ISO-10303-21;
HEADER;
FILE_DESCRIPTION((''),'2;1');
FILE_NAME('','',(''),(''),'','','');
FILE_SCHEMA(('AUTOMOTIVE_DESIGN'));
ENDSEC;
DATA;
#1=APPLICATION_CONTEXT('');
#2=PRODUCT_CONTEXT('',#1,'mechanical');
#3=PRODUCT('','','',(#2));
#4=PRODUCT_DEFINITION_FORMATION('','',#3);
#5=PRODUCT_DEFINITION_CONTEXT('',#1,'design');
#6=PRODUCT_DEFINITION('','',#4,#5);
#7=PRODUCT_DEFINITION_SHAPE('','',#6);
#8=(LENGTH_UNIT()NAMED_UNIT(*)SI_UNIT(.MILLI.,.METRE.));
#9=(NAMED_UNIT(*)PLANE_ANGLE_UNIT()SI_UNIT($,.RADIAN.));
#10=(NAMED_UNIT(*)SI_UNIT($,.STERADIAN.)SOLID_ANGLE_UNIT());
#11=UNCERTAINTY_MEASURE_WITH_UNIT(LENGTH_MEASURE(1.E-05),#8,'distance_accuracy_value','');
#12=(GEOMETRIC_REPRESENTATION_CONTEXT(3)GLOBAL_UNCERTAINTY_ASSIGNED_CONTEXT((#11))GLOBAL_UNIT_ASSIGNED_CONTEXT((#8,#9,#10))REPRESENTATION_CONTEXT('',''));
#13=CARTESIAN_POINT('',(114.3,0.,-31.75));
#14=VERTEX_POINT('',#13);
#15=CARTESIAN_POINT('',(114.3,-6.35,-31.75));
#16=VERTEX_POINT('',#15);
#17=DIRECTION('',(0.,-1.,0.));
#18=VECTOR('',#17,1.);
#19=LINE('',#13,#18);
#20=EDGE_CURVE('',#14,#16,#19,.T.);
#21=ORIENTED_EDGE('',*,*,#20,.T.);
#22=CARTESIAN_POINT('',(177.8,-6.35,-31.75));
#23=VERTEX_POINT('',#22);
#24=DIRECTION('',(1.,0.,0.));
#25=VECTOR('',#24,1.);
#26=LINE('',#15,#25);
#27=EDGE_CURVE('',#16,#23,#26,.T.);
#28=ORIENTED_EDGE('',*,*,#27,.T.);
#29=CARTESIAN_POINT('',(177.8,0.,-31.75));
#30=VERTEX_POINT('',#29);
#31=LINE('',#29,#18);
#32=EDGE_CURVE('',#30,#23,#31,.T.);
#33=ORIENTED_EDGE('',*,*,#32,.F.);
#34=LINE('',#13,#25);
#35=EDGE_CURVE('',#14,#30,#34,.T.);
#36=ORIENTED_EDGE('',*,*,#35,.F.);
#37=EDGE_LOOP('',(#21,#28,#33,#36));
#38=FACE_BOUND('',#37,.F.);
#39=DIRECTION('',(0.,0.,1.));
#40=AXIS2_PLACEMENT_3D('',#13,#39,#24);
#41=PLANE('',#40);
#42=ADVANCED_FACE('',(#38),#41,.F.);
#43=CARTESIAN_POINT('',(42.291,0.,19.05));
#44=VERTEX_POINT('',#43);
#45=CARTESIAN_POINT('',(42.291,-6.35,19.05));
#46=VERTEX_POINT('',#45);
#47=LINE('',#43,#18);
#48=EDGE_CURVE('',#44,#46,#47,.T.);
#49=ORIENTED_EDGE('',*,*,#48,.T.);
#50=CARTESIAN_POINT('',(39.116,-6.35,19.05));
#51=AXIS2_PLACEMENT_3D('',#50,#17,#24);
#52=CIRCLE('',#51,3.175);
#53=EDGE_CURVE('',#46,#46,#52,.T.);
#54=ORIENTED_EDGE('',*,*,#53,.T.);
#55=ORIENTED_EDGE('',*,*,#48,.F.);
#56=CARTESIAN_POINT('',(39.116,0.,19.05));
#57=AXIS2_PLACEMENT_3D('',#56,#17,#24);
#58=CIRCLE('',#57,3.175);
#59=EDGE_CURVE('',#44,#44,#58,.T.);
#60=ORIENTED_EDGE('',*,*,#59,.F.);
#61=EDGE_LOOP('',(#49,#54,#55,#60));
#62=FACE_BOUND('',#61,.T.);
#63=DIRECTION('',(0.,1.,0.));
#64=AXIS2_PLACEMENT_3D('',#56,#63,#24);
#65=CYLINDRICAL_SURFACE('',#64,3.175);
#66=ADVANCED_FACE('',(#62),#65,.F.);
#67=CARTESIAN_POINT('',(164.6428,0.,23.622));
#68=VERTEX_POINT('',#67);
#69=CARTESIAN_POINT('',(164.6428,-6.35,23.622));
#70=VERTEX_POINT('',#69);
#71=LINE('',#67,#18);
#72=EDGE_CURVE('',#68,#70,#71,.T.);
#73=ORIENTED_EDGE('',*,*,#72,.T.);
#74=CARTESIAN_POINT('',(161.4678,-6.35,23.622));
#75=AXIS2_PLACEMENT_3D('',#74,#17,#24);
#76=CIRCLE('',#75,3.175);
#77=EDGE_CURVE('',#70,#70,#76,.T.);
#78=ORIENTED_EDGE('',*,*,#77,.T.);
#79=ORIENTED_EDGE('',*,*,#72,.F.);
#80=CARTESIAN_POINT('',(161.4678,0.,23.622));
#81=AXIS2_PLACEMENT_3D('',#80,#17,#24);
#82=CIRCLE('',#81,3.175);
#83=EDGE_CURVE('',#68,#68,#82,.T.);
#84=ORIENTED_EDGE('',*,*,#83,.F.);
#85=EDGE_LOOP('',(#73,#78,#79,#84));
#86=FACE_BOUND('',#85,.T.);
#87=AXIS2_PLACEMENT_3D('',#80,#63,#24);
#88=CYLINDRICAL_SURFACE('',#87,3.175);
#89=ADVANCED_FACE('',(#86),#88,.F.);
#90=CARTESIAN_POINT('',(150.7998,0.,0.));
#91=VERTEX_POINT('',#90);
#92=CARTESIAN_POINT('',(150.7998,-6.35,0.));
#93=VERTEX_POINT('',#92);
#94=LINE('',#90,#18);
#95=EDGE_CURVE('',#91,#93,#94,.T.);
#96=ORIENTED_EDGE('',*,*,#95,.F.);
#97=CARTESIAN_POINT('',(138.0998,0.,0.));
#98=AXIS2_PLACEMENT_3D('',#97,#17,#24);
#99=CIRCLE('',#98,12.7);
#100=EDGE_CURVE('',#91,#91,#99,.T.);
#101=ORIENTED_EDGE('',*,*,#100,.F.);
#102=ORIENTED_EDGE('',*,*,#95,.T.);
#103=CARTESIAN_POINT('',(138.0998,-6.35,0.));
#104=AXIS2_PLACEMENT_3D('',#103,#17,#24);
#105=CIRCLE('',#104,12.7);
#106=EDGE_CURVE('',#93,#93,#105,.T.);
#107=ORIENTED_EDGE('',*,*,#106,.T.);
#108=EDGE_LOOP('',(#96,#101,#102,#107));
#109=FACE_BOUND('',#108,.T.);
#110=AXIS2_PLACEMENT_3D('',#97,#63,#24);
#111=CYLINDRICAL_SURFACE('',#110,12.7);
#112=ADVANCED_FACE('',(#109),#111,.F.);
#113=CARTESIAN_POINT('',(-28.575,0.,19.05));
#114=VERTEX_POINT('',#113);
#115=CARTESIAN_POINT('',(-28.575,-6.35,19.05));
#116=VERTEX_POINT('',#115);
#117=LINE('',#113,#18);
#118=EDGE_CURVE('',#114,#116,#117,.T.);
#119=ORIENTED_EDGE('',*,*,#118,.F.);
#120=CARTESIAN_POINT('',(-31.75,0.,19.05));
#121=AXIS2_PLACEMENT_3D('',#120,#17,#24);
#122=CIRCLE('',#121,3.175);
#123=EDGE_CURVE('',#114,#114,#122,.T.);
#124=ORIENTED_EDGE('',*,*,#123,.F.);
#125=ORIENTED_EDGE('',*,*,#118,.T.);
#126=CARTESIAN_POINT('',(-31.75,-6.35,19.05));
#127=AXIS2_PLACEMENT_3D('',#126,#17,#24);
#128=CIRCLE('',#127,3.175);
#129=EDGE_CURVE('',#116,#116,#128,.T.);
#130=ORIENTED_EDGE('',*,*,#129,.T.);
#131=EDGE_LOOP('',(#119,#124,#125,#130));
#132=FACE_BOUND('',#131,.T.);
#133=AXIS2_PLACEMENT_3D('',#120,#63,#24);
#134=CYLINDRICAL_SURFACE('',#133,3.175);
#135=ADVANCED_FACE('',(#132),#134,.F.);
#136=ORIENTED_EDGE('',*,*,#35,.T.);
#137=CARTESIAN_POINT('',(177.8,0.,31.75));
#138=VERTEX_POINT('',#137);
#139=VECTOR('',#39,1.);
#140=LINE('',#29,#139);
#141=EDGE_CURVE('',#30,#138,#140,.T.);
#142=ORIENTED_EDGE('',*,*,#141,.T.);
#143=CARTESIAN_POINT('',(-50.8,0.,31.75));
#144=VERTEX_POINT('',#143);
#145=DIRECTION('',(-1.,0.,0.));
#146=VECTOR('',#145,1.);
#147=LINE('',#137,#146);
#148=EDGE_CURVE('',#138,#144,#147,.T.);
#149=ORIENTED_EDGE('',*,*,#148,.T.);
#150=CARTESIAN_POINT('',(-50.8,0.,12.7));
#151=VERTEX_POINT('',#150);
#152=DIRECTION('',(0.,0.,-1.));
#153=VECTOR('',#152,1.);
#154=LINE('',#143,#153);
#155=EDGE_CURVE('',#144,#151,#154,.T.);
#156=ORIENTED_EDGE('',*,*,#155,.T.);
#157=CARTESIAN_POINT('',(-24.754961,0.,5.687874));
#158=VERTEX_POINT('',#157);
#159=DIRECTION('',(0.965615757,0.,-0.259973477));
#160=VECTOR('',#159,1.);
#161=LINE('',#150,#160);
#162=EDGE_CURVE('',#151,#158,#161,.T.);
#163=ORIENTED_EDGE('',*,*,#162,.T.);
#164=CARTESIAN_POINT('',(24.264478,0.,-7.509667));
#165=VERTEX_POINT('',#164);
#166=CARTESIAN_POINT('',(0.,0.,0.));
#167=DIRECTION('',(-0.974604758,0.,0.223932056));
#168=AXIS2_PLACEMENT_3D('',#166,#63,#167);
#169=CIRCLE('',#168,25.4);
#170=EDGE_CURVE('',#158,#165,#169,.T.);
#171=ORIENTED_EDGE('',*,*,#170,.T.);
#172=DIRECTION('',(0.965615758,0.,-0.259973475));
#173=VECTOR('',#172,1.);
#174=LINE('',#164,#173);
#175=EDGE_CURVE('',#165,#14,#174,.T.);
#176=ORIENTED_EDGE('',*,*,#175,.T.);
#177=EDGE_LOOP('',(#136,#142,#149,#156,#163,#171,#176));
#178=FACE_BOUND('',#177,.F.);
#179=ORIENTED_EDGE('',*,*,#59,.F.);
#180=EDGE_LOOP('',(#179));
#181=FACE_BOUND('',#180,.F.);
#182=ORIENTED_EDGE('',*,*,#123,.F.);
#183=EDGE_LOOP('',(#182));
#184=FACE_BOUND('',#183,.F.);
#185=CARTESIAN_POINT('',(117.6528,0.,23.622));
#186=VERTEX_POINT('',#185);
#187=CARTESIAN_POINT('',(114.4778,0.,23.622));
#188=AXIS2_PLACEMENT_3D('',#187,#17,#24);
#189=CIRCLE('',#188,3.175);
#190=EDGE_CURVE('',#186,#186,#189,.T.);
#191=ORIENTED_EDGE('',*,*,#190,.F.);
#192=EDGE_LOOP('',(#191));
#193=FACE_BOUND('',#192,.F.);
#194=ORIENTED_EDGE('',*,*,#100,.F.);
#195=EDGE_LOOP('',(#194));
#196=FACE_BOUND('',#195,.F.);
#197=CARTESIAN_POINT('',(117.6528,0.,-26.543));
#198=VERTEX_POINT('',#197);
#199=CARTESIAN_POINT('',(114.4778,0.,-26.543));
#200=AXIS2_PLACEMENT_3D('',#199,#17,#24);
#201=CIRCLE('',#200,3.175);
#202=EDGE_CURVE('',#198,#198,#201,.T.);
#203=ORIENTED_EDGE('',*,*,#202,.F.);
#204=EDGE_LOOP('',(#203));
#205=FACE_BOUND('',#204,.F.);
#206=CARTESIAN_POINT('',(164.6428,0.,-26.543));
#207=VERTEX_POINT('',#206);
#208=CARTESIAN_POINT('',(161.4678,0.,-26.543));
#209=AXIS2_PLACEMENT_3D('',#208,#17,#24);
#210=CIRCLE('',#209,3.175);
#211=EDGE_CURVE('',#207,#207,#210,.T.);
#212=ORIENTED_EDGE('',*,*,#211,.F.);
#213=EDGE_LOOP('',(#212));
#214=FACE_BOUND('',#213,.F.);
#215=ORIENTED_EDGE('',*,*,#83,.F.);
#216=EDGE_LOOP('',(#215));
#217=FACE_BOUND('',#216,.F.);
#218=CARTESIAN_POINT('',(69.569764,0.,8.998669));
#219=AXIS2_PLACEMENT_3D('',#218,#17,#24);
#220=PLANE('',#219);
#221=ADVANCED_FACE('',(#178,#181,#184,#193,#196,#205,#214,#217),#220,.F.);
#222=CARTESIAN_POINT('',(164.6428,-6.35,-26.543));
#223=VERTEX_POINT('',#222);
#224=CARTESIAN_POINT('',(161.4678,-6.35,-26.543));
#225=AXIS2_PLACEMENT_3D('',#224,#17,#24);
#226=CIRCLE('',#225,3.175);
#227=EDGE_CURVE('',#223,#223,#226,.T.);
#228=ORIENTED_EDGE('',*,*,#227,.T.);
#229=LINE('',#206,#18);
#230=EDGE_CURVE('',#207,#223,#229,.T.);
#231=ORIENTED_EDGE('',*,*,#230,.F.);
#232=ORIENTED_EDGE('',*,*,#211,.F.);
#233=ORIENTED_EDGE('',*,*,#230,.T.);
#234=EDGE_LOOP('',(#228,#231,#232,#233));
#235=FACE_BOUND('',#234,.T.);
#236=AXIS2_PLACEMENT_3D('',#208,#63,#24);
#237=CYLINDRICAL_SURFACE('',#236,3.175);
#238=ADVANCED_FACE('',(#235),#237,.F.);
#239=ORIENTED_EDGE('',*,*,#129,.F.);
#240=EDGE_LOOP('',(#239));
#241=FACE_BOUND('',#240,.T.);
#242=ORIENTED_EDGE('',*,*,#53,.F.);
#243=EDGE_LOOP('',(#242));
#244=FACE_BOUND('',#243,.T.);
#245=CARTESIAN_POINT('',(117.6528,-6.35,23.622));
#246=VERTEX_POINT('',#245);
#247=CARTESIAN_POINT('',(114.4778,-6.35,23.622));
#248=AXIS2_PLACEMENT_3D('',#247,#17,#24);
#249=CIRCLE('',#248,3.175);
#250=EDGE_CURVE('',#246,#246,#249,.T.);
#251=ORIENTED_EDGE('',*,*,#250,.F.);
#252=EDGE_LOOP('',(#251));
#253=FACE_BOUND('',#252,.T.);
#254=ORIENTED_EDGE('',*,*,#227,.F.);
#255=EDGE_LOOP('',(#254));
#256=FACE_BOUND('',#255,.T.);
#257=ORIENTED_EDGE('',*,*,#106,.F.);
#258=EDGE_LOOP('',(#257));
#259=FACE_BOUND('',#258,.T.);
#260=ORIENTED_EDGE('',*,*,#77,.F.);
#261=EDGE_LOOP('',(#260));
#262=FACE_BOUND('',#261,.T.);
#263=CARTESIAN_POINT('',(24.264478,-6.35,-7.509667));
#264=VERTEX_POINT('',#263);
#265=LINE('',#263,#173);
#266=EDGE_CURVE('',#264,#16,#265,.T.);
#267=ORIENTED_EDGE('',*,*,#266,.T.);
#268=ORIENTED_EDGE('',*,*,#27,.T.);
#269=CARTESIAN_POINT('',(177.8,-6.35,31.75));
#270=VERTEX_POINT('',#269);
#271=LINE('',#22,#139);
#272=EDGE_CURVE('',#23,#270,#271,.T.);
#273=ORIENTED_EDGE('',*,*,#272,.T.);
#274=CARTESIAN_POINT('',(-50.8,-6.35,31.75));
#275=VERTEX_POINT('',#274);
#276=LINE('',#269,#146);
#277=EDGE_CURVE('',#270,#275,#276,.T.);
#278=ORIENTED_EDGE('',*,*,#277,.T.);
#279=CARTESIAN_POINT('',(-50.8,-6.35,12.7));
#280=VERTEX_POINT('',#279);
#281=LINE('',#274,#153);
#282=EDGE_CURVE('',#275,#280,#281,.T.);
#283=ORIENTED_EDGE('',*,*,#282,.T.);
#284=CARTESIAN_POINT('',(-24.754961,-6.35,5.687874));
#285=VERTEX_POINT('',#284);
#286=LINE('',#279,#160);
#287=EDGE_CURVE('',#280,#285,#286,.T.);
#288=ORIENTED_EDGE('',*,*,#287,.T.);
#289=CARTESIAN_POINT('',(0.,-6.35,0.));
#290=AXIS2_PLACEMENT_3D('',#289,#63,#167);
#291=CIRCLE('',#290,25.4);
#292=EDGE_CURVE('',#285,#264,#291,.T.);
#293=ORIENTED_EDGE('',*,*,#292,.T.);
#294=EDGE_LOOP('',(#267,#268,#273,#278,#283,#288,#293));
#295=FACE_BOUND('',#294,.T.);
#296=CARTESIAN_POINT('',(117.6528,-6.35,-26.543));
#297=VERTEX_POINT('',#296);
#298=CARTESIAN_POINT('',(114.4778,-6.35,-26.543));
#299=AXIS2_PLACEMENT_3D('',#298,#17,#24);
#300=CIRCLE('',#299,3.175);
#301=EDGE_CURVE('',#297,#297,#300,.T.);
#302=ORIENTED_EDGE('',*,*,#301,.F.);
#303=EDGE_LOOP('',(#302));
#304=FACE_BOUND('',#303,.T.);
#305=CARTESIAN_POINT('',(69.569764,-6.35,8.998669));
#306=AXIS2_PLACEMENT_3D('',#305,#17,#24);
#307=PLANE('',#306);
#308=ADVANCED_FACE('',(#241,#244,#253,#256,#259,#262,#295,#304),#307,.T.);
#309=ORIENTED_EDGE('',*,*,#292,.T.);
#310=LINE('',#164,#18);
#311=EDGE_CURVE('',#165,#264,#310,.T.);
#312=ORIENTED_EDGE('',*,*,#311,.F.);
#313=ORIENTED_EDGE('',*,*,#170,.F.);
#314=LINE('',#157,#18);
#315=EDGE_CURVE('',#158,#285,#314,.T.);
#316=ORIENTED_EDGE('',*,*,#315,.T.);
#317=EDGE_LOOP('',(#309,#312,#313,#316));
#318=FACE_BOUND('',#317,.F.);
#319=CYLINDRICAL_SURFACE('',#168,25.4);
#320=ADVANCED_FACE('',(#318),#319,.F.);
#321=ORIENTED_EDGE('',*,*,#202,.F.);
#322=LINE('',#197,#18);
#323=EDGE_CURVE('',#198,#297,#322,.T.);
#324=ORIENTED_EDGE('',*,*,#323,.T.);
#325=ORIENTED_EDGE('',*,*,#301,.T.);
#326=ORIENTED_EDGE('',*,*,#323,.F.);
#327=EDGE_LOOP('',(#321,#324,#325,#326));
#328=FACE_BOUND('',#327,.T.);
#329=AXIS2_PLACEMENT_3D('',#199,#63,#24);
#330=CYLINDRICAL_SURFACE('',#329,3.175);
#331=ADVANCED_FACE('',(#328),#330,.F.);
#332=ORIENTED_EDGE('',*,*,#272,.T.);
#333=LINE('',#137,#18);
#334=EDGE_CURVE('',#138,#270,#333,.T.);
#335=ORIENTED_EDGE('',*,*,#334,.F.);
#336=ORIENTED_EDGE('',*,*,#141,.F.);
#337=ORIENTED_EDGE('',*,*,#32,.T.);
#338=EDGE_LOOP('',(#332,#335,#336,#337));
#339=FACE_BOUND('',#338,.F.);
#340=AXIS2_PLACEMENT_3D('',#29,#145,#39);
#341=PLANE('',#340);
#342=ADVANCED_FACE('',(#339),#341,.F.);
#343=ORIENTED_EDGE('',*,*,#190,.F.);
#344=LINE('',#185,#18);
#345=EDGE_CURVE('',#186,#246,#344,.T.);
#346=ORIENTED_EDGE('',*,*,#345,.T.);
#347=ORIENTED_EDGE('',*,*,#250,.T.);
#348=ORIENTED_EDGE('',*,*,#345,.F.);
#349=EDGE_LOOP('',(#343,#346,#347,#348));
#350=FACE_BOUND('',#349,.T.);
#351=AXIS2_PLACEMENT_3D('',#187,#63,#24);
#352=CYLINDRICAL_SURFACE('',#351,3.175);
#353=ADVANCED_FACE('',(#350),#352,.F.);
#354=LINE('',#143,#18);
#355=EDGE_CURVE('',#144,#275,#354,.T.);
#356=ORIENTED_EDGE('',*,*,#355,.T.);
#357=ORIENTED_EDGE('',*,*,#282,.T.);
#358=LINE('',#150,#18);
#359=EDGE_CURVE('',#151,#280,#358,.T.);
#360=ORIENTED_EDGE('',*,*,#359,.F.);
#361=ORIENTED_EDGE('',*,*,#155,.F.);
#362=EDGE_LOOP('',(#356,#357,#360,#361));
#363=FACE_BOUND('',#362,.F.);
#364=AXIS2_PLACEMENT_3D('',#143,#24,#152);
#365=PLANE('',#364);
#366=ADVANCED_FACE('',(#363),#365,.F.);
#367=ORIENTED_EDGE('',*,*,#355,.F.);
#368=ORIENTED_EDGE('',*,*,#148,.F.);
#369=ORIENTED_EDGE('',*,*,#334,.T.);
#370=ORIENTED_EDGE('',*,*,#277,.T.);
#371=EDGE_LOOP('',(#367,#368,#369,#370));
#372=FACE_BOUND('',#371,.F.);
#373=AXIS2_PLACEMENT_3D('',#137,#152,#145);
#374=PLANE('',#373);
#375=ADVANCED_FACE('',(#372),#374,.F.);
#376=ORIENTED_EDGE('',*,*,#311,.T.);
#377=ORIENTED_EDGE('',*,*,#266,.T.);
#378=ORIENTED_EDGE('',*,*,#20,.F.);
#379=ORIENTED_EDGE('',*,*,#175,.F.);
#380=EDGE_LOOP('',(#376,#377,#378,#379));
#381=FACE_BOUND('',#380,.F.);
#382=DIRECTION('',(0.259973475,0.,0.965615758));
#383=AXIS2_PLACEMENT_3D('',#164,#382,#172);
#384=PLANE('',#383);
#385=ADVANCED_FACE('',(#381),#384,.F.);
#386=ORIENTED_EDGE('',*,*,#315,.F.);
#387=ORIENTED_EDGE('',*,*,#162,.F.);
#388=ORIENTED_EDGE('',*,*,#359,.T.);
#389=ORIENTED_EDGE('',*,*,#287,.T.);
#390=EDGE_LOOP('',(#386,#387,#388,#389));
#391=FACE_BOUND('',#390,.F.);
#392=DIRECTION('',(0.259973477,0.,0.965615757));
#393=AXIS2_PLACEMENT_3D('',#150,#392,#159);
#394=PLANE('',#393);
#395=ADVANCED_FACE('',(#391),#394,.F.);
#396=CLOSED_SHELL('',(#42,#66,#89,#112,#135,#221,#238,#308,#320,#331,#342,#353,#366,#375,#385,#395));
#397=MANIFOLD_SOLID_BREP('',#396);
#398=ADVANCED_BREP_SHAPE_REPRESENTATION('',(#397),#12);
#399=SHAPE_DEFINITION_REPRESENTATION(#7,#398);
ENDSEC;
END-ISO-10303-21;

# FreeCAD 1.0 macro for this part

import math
import FreeCAD as App
import Part
import Sketcher
from FreeCAD import Vector
Q = App.Units.Quantity

doc = App.newDocument("Part")
params = doc.addObject("Spreadsheet::Sheet", "Params")
for row, (alias, value) in enumerate([
    ("sketch1_diameter", "1 in"),
    ("sketch1_radius", "1 in"),
    ("sketch1_diameter2", "0.25 in"),
    ("sketch1_width", "9 in"),
    ("sketch1_width2", "2.5 in"),
    ("pad1_length", "0.25 in"),
], start=1):
    params.set(f"A{row}", alias)
    params.set(f"B{row}", "=" + value)
    params.setAlias(f"B{row}", alias)

body = doc.addObject("PartDesign::Body", "Body")

# Sketch on XZ plane
sketch1 = body.newObject("Sketcher::SketchObject", "Sketch")
sketch1.AttachmentSupport = (doc.getObject("XZ_Plane"), [""])
sketch1.MapMode = "FlatFace"
sketch1.addGeometry([
    Part.LineSegment(Vector(177.8, 31.75, 0), Vector(-50.8, 31.75, 0)),  # 0
    Part.LineSegment(Vector(-50.8, 31.75, 0), Vector(-50.8, 12.7, 0)),  # 1
    Part.LineSegment(Vector(-50.8, 12.7, 0), Vector(-24.754961, 5.687874, 0)),  # 2
    Part.ArcOfCircle(Part.Circle(Vector(0, 0, 0), Vector(0, 0, 1), 25.4), math.radians(-17.196889), math.radians(167.059913)),  # 3
    Part.LineSegment(Vector(24.264478, -7.509667, 0), Vector(114.3, -31.75, 0)),  # 4
    Part.LineSegment(Vector(114.3, -31.75, 0), Vector(177.8, -31.75, 0)),  # 5
    Part.LineSegment(Vector(177.8, -31.75, 0), Vector(177.8, 31.75, 0)),  # 6
    Part.Circle(Vector(114.4778, -26.543, 0), Vector(0, 0, 1), 3.175),  # 7
    Part.Circle(Vector(161.4678, -26.543, 0), Vector(0, 0, 1), 3.175),  # 8
    Part.Circle(Vector(-31.75, 19.05, 0), Vector(0, 0, 1), 3.175),  # 9
    Part.Circle(Vector(39.116, 19.05, 0), Vector(0, 0, 1), 3.175),  # 10
    Part.Circle(Vector(138.0998, 0, 0), Vector(0, 0, 1), 12.7),  # 11
    Part.Circle(Vector(114.4778, 23.622, 0), Vector(0, 0, 1), 3.175),  # 12
    Part.Circle(Vector(161.4678, 23.622, 0), Vector(0, 0, 1), 3.175),  # 13
], False)
sketch1.addConstraint([
    Sketcher.Constraint("Coincident", 0, 2, 1, 1),
    Sketcher.Constraint("Coincident", 1, 2, 2, 1),
    Sketcher.Constraint("Coincident", 2, 2, 3, 2),
    Sketcher.Constraint("Coincident", 3, 1, 4, 1),
    Sketcher.Constraint("Coincident", 4, 2, 5, 1),
    Sketcher.Constraint("Coincident", 5, 2, 6, 1),
    Sketcher.Constraint("Coincident", 6, 2, 0, 1),
    Sketcher.Constraint("Horizontal", 0),
    Sketcher.Constraint("Vertical", 1),
    Sketcher.Constraint("Horizontal", 5),
    Sketcher.Constraint("Vertical", 6),
    Sketcher.Constraint("Coincident", 3, 3, -1, 1),
    Sketcher.Constraint("Equal", 7, 8),
    Sketcher.Constraint("Equal", 8, 9),
    Sketcher.Constraint("Equal", 9, 10),
    Sketcher.Constraint("Equal", 10, 12),
    Sketcher.Constraint("Equal", 12, 13),
    Sketcher.Constraint("PointOnObject", 11, 3, -1),
    Sketcher.Constraint("Parallel", 2, 4),
    Sketcher.Constraint("Horizontal", 7, 3, 8, 3),
    Sketcher.Constraint("Horizontal", 9, 3, 10, 3),
    Sketcher.Constraint("Horizontal", 12, 3, 13, 3),
    Sketcher.Constraint("Vertical", 7, 3, 12, 3),
    Sketcher.Constraint("Vertical", 8, 3, 13, 3),
    Sketcher.Constraint("Equal", 5, 6),
    Sketcher.Constraint("Diameter", 11, Q("1 in")),
    Sketcher.Constraint("Radius", 3, Q("1 in")),
    Sketcher.Constraint("Diameter", 7, Q("0.25 in")),
    Sketcher.Constraint("DistanceX", 0, 2, 0, 1, Q("9 in")),
    Sketcher.Constraint("DistanceX", 5, 1, 5, 2, Q("2.5 in")),
    Sketcher.Constraint("DistanceX", 0, 2, -1, 1, Q("2 in")),
    Sketcher.Constraint("DistanceY", 1, 2, 1, 1, Q("0.75 in")),
    Sketcher.Constraint("DistanceY", -1, 1, 1, 2, Q("0.5 in")),
    Sketcher.Constraint("DistanceY", 9, 3, 0, 2, Q("0.5 in")),
    Sketcher.Constraint("DistanceX", 9, 3, -1, 1, Q("1.25 in")),
    Sketcher.Constraint("DistanceX", -1, 1, 10, 3, Q("1.54 in")),
    Sketcher.Constraint("DistanceY", -1, 1, 12, 3, Q("0.93 in")),
    Sketcher.Constraint("DistanceX", 7, 3, 8, 3, Q("1.85 in")),
    Sketcher.Constraint("DistanceX", 11, 3, 8, 3, Q("0.92 in")),
    Sketcher.Constraint("DistanceX", -1, 1, 7, 3, Q("4.507 in")),
    Sketcher.Constraint("DistanceY", 7, 3, -1, 1, Q("1.045 in")),
    Sketcher.Constraint("DistanceX", 2, 2, -1, 1, Q("24.754961 mm")),
])
sketch1.setExpression("Constraints[25]", "Params.sketch1_diameter")
sketch1.setExpression("Constraints[26]", "Params.sketch1_radius")
sketch1.setExpression("Constraints[27]", "Params.sketch1_diameter2")
sketch1.setExpression("Constraints[28]", "Params.sketch1_width")
sketch1.setExpression("Constraints[29]", "Params.sketch1_width2")
pad1 = body.newObject("PartDesign::Pad", "Pad")
pad1.Profile = sketch1
pad1.setExpression("Length", "Params.pad1_length")

doc.recompute()
